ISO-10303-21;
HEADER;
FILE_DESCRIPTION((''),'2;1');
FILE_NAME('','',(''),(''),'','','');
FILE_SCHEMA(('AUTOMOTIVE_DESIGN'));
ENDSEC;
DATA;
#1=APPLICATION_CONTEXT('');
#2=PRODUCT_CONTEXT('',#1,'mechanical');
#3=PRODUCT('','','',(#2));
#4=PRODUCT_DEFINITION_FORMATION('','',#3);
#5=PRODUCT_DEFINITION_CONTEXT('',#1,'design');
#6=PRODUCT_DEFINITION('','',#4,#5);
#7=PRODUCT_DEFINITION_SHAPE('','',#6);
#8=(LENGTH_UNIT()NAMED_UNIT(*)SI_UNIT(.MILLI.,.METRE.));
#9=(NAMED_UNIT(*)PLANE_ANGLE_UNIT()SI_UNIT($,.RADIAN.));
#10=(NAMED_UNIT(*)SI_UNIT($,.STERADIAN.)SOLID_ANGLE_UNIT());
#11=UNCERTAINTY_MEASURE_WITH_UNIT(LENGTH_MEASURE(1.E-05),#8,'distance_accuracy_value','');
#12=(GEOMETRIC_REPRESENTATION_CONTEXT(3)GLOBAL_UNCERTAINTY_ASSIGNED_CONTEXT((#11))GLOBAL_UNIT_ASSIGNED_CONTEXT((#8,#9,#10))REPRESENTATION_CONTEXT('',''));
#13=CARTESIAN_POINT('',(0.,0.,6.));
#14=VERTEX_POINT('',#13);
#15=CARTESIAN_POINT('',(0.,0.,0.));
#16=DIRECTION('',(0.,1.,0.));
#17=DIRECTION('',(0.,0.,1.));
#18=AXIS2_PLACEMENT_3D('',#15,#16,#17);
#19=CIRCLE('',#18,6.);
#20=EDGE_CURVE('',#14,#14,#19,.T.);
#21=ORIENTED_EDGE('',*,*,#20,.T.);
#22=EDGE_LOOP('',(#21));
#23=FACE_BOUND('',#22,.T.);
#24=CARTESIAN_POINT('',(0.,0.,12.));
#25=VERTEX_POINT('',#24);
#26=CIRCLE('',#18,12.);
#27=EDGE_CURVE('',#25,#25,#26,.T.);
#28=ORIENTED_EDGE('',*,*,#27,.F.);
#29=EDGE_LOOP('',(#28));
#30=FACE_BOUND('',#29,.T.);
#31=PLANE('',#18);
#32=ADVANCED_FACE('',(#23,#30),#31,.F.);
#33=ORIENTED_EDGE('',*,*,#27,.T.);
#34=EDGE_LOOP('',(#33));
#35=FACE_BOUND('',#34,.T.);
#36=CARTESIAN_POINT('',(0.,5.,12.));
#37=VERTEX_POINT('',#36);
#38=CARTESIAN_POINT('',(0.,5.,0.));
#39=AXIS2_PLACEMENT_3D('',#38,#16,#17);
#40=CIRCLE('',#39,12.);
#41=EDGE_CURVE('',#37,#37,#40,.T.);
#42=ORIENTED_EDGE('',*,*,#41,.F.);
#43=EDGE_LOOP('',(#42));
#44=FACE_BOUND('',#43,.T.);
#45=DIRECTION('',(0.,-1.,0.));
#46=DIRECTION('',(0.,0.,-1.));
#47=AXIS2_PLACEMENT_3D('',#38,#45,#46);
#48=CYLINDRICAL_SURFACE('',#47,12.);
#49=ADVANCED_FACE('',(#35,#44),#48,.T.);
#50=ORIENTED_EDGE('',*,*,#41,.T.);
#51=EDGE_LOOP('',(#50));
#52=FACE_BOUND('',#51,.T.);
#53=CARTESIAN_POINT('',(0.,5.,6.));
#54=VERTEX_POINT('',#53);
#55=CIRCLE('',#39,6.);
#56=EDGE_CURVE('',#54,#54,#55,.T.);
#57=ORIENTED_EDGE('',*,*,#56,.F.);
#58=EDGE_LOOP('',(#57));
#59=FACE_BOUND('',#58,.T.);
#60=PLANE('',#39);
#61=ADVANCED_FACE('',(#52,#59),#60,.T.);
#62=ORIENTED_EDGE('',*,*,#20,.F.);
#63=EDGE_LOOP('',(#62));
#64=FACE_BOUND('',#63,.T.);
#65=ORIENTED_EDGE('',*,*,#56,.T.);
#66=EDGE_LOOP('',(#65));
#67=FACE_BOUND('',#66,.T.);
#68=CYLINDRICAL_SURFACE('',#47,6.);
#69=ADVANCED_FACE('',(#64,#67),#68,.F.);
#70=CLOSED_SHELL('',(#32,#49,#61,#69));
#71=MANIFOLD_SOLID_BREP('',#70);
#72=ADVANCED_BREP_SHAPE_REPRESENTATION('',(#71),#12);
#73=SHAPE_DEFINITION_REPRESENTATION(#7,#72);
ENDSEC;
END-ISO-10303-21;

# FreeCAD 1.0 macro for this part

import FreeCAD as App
import Part
import Sketcher

V = App.Vector

doc = App.newDocument("Part")
params = doc.addObject("Spreadsheet::Sheet", "Params")
for row, (alias, value) in enumerate([
    ("sketch1_diameter", "24 mm"),
    ("sketch1_diameter2", "12 mm"),
    ("pad1_length", "5 mm"),
], start=1):
    params.set(f"A{row}", alias)
    params.set(f"B{row}", "=" + value)
    params.setAlias(f"B{row}", alias)

body = doc.addObject("PartDesign::Body", "Body")

sketch1 = body.newObject("Sketcher::SketchObject", "Sketch")
sketch1.AttachmentSupport = (doc.getObject("XZ_Plane"), [""])
sketch1.MapMode = "FlatFace"
sketch1.addGeometry(Part.Circle(V(0, 0, 0), V(0, 0, 1), 12), False)
sketch1.addGeometry(Part.Circle(V(0, 0, 0), V(0, 0, 1), 6), False)
sketch1.addConstraint(Sketcher.Constraint("Coincident", 0, 3, -1, 1))
sketch1.addConstraint(Sketcher.Constraint("Coincident", 1, 3, -1, 1))
sketch1.addConstraint(Sketcher.Constraint("Diameter", 0, 24.0))
sketch1.addConstraint(Sketcher.Constraint("Diameter", 1, 12.0))
sketch1.setExpression("Constraints[2]", "Params.sketch1_diameter")
sketch1.setExpression("Constraints[3]", "Params.sketch1_diameter2")
pad1 = body.newObject("PartDesign::Pad", "Pad")
pad1.Profile = sketch1
pad1.setExpression("Length", "Params.pad1_length")
pad1.Reversed = True

doc.recompute()
